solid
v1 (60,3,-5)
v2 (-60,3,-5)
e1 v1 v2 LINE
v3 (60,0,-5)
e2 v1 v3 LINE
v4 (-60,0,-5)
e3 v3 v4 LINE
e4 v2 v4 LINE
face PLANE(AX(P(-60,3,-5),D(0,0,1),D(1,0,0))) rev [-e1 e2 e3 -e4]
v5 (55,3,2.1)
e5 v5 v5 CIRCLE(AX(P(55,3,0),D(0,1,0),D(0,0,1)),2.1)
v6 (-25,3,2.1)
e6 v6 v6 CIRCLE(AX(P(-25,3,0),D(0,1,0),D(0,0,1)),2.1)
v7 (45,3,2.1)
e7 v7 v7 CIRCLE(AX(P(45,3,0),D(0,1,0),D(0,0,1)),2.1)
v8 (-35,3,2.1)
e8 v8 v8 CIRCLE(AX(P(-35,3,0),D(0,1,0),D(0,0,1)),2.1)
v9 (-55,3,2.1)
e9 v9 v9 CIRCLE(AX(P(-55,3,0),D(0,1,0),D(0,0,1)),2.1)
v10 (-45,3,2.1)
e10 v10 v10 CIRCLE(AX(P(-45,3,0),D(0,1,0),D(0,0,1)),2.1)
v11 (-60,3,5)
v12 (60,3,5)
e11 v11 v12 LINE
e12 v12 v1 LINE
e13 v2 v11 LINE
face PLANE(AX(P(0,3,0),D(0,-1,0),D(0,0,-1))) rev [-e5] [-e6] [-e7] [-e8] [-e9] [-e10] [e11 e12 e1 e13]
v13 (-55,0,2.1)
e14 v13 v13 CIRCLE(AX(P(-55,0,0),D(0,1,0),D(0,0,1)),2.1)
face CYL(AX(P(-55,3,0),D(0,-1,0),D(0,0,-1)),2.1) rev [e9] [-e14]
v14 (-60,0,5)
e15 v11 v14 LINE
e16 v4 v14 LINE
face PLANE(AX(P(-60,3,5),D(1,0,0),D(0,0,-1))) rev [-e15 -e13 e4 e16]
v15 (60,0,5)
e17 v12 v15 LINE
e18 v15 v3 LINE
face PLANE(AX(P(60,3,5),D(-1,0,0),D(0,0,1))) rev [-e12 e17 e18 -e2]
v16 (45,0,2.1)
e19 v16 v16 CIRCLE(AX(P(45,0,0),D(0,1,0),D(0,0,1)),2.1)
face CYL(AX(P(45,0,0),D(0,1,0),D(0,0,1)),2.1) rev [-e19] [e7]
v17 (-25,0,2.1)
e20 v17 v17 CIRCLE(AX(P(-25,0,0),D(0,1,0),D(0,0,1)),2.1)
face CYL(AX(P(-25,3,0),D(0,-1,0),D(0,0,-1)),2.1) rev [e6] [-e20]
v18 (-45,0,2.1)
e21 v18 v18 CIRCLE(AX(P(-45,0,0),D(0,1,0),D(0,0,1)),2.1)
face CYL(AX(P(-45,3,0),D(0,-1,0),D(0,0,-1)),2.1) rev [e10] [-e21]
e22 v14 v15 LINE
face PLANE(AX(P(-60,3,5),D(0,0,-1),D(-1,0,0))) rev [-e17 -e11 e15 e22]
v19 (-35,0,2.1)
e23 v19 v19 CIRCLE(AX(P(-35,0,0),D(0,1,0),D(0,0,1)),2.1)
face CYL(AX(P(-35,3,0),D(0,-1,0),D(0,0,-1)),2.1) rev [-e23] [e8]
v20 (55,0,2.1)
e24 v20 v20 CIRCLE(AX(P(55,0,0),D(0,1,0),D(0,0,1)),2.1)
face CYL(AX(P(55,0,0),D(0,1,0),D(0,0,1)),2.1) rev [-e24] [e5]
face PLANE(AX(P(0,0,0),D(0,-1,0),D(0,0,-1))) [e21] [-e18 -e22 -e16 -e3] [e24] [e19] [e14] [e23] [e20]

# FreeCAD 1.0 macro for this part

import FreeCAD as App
import Part
import Sketcher
from FreeCAD import Vector

doc = App.newDocument("Part")
params = doc.addObject("Spreadsheet::Sheet", "Params")
for row, (alias, value) in enumerate([
    ("sketch1_diameter", "4.2 mm"),
    ("sketch1_width", "120 mm"),
    ("sketch1_height", "10 mm"),
    ("pad1_length", "3 mm"),
    ("sketch2_diameter", "4.2 mm"),
    ("pocket1_length", "3 mm"),
], start=1):
    params.set(f"A{row}", alias)
    params.set(f"B{row}", "=" + value)
    params.setAlias(f"B{row}", alias)

body = doc.addObject("PartDesign::Body", "Body")

sketch1 = doc.addObject("Sketcher::SketchObject", "Sketch")
body.addObject(sketch1)
sketch1.AttachmentSupport = (doc.XZ_Plane, [""])
sketch1.MapMode = "FlatFace"
sketch1.addGeometry([
    Part.LineSegment(Vector(-60, -5, 0), Vector(-60, 5, 0)),
    Part.LineSegment(Vector(-60, 5, 0), Vector(60, 5, 0)),
    Part.LineSegment(Vector(60, 5, 0), Vector(60, -5, 0)),
    Part.LineSegment(Vector(60, -5, 0), Vector(-60, -5, 0)),
    Part.Circle(Vector(-55, 0, 0), Vector(0, 0, 1), 2.1),
    Part.Circle(Vector(-45, 0, 0), Vector(0, 0, 1), 2.1),
    Part.Circle(Vector(-35, 0, 0), Vector(0, 0, 1), 2.1),
    Part.Circle(Vector(-25, 0, 0), Vector(0, 0, 1), 2.1),
], False)
sketch1.addConstraint([
    Sketcher.Constraint("Coincident", 0, 2, 1, 1),
    Sketcher.Constraint("Coincident", 1, 2, 2, 1),
    Sketcher.Constraint("Coincident", 2, 2, 3, 1),
    Sketcher.Constraint("Coincident", 3, 2, 0, 1),
    Sketcher.Constraint("Vertical", 0),
    Sketcher.Constraint("Horizontal", 1),
    Sketcher.Constraint("Vertical", 2),
    Sketcher.Constraint("Horizontal", 3),
    Sketcher.Constraint("Equal", 4, 5),
    Sketcher.Constraint("Equal", 5, 6),
    Sketcher.Constraint("Equal", 6, 7),
    Sketcher.Constraint("Symmetric", 0, 2, 2, 2, -1, 1),
    Sketcher.Constraint("PointOnObject", 4, 3, -1),
    Sketcher.Constraint("PointOnObject", 5, 3, -1),
    Sketcher.Constraint("PointOnObject", 6, 3, -1),
    Sketcher.Constraint("PointOnObject", 7, 3, -1),
    Sketcher.Constraint("Diameter", 4, 4.2),
    Sketcher.Constraint("DistanceX", 1, 1, 1, 2, 120.0),
    Sketcher.Constraint("DistanceY", 0, 1, 0, 2, 10.0),
    Sketcher.Constraint("DistanceX", 4, 3, -1, 1, 55.0),
    Sketcher.Constraint("DistanceX", 5, 3, -1, 1, 45.0),
    Sketcher.Constraint("DistanceX", 6, 3, -1, 1, 35.0),
    Sketcher.Constraint("DistanceX", 7, 3, -1, 1, 25.0),
])
sketch1.setExpression("Constraints[16]", "Params.sketch1_diameter")
sketch1.setExpression("Constraints[17]", "Params.sketch1_width")
sketch1.setExpression("Constraints[18]", "Params.sketch1_height")
pad1 = doc.addObject("PartDesign::Pad", "Pad")
body.addObject(pad1)
pad1.Profile = sketch1
pad1.setExpression("Length", "Params.pad1_length")
pad1.Reversed = True

sketch2 = doc.addObject("Sketcher::SketchObject", "Sketch001")
body.addObject(sketch2)
sketch2.AttachmentSupport = (doc.XZ_Plane, [""])
sketch2.MapMode = "FlatFace"
sketch2.AttachmentOffset = App.Placement(Vector(0, 0, -3), App.Rotation())
sketch2.addGeometry([
    Part.Circle(Vector(55, 0, 0), Vector(0, 0, 1), 2.1),
    Part.Circle(Vector(45, 0, 0), Vector(0, 0, 1), 2.1),
], False)
sketch2.addConstraint([
    Sketcher.Constraint("Equal", 0, 1),
    Sketcher.Constraint("PointOnObject", 0, 3, -1),
    Sketcher.Constraint("PointOnObject", 1, 3, -1),
    Sketcher.Constraint("Diameter", 0, 4.2),
    Sketcher.Constraint("DistanceX", -1, 1, 0, 3, 55.0),
    Sketcher.Constraint("DistanceX", -1, 1, 1, 3, 45.0),
])
sketch2.setExpression("Constraints[3]", "Params.sketch2_diameter")
pocket1 = doc.addObject("PartDesign::Pocket", "Pocket")
body.addObject(pocket1)
pocket1.Profile = sketch2
pocket1.setExpression("Length", "Params.pocket1_length")
pocket1.Reversed = True

doc.recompute()
